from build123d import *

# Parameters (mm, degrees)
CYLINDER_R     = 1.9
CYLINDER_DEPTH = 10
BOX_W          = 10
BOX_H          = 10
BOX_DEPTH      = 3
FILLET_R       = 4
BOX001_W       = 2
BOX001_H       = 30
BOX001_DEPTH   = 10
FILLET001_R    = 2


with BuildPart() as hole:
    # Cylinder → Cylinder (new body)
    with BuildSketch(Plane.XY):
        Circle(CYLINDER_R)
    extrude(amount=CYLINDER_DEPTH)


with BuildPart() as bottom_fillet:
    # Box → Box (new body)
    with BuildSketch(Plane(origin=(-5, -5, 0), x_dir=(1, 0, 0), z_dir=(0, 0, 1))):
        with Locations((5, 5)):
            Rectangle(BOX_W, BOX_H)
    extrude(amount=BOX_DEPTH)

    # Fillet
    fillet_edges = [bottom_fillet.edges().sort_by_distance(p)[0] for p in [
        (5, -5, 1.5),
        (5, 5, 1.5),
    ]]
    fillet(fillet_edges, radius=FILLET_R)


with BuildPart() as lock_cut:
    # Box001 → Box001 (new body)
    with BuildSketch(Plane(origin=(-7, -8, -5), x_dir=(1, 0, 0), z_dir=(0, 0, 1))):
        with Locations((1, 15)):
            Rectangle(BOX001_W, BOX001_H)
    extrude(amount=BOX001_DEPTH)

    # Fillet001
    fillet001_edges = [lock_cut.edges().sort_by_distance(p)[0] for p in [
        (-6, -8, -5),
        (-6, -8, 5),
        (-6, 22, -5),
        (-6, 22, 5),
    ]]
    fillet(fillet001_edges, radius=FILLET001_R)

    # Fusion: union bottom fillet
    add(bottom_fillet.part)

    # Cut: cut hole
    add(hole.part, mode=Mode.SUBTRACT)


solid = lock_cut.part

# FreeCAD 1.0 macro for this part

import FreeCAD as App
import Part
import Sketcher
from FreeCAD import Vector


def edges_at(feature, points):
    """Names of the edges that pass closest to the given points."""
    edges = feature.Shape.Edges
    near = lambda p: min(range(len(edges)), key=lambda i: edges[i].distToShape(Part.Vertex(*p))[0])
    return sorted({f"Edge{near(p) + 1}" for p in points})


def add_polygon(sketch, points):
    """Adds a closed chain of lines whose ends are joined by coincident constraints."""
    first, n = sketch.GeometryCount, len(points)
    for a, b in zip(points, points[1:] + points[:1]):
        sketch.addGeometry(Part.LineSegment(App.Vector(*a, 0), App.Vector(*b, 0)), False)
    for i in range(n):
        sketch.addConstraint(Sketcher.Constraint("Coincident", first + i, 2, first + (i + 1) % n, 1))

doc = App.newDocument("Part")
params = doc.addObject("Spreadsheet::Sheet", "Params")
for row, (alias, value) in enumerate([
    ("sketch1_diameter", "3.8 mm"),
    ("pad1_length", "10 mm"),
    ("sketch2_width", "10 mm"),
    ("pad2_length", "3 mm"),
    ("fillet_radius", "4 mm"),
    ("sketch3_width", "2 mm"),
    ("sketch3_height", "30 mm"),
    ("pad3_length", "10 mm"),
    ("fillet2_radius", "2 mm"),
], start=1):
    params.set(f"A{row}", alias)
    params.set(f"B{row}", "=" + value)
    params.setAlias(f"B{row}", alias)

body = doc.addObject("PartDesign::Body", "Body")

# Sketch on XY plane
sketch1 = body.newObject("Sketcher::SketchObject", "Sketch")
sketch1.AttachmentSupport = (doc.getObject("XY_Plane"), [""])
sketch1.MapMode = "FlatFace"
sketch1.addGeometry(Part.Circle(Vector(0, 0, 0), Vector(0, 0, 1), 1.9), False)
sketch1.addConstraint(Sketcher.Constraint("Coincident", 0, 3, -1, 1))
sketch1.addConstraint(Sketcher.Constraint("Diameter", 0, 3.8))
sketch1.setExpression("Constraints[1]", "Params.sketch1_diameter")
pad1 = body.newObject("PartDesign::Pad", "Pad")
pad1.Profile = sketch1
pad1.setExpression("Length", "Params.pad1_length")
body2 = doc.addObject("PartDesign::Body", "Body001")

# Sketch on XY plane
sketch2 = body2.newObject("Sketcher::SketchObject", "Sketch001")
sketch2.AttachmentSupport = (doc.getObject("XY_Plane001"), [""])
sketch2.MapMode = "FlatFace"
add_polygon(sketch2, [(-5, 5), (-5, -5), (5, -5), (5, 5)])  # lines 0-3
sketch2.addConstraint(Sketcher.Constraint("Vertical", 0))
sketch2.addConstraint(Sketcher.Constraint("Horizontal", 1))
sketch2.addConstraint(Sketcher.Constraint("Vertical", 2))
sketch2.addConstraint(Sketcher.Constraint("Horizontal", 3))
sketch2.addConstraint(Sketcher.Constraint("Symmetric", 0, 2, 2, 2, -1, 1))
sketch2.addConstraint(Sketcher.Constraint("Equal", 3, 0))
sketch2.addConstraint(Sketcher.Constraint("DistanceX", 1, 1, 1, 2, 10.0))
sketch2.setExpression("Constraints[10]", "Params.sketch2_width")
pad2 = body2.newObject("PartDesign::Pad", "Pad001")
pad2.Profile = sketch2
pad2.setExpression("Length", "Params.pad2_length")
doc.recompute()

fillet = body2.newObject("PartDesign::Fillet", "Fillet")
fillet.Base = (pad2, edges_at(pad2, [(5, -5, 1.5), (5, 5, 1.5)]))
fillet.setExpression("Radius", "Params.fillet_radius")
body3 = doc.addObject("PartDesign::Body", "Body002")

# Sketch on XY plane
sketch3 = body3.newObject("Sketcher::SketchObject", "Sketch002")
sketch3.AttachmentSupport = (doc.getObject("XY_Plane002"), [""])
sketch3.MapMode = "FlatFace"
sketch3.AttachmentOffset = App.Placement(Vector(0, 0, -5), App.Rotation())
add_polygon(sketch3, [(-7, 22), (-7, -8), (-5, -8), (-5, 22)])  # lines 0-3
sketch3.addConstraint(Sketcher.Constraint("Vertical", 0))
sketch3.addConstraint(Sketcher.Constraint("Horizontal", 1))
sketch3.addConstraint(Sketcher.Constraint("Vertical", 2))
sketch3.addConstraint(Sketcher.Constraint("Horizontal", 3))
sketch3.addConstraint(Sketcher.Constraint("DistanceX", 1, 1, 1, 2, 2.0))
sketch3.addConstraint(Sketcher.Constraint("DistanceY", 0, 2, 0, 1, 30.0))
sketch3.addConstraint(Sketcher.Constraint("DistanceX", 0, 2, -1, 1, 7.0))
sketch3.addConstraint(Sketcher.Constraint("DistanceY", 0, 2, -1, 1, 8.0))
sketch3.setExpression("Constraints[8]", "Params.sketch3_width")
sketch3.setExpression("Constraints[9]", "Params.sketch3_height")
pad3 = body3.newObject("PartDesign::Pad", "Pad002")
pad3.Profile = sketch3
pad3.setExpression("Length", "Params.pad3_length")
doc.recompute()

fillet2 = body3.newObject("PartDesign::Fillet", "Fillet001")
fillet2.Base = (pad3, edges_at(pad3, [
    (-6, -8, -5),
    (-6, -8, 5),
    (-6, 22, -5),
    (-6, 22, 5),
]))
fillet2.setExpression("Radius", "Params.fillet2_radius")
doc.recompute()

boolean = body3.newObject("PartDesign::Boolean", "Boolean")
boolean.Type = "Fuse"
boolean.addObjects([body2])
doc.recompute()

boolean2 = body3.newObject("PartDesign::Boolean", "Boolean001")
boolean2.Type = "Cut"
boolean2.addObjects([body])

doc.recompute()
